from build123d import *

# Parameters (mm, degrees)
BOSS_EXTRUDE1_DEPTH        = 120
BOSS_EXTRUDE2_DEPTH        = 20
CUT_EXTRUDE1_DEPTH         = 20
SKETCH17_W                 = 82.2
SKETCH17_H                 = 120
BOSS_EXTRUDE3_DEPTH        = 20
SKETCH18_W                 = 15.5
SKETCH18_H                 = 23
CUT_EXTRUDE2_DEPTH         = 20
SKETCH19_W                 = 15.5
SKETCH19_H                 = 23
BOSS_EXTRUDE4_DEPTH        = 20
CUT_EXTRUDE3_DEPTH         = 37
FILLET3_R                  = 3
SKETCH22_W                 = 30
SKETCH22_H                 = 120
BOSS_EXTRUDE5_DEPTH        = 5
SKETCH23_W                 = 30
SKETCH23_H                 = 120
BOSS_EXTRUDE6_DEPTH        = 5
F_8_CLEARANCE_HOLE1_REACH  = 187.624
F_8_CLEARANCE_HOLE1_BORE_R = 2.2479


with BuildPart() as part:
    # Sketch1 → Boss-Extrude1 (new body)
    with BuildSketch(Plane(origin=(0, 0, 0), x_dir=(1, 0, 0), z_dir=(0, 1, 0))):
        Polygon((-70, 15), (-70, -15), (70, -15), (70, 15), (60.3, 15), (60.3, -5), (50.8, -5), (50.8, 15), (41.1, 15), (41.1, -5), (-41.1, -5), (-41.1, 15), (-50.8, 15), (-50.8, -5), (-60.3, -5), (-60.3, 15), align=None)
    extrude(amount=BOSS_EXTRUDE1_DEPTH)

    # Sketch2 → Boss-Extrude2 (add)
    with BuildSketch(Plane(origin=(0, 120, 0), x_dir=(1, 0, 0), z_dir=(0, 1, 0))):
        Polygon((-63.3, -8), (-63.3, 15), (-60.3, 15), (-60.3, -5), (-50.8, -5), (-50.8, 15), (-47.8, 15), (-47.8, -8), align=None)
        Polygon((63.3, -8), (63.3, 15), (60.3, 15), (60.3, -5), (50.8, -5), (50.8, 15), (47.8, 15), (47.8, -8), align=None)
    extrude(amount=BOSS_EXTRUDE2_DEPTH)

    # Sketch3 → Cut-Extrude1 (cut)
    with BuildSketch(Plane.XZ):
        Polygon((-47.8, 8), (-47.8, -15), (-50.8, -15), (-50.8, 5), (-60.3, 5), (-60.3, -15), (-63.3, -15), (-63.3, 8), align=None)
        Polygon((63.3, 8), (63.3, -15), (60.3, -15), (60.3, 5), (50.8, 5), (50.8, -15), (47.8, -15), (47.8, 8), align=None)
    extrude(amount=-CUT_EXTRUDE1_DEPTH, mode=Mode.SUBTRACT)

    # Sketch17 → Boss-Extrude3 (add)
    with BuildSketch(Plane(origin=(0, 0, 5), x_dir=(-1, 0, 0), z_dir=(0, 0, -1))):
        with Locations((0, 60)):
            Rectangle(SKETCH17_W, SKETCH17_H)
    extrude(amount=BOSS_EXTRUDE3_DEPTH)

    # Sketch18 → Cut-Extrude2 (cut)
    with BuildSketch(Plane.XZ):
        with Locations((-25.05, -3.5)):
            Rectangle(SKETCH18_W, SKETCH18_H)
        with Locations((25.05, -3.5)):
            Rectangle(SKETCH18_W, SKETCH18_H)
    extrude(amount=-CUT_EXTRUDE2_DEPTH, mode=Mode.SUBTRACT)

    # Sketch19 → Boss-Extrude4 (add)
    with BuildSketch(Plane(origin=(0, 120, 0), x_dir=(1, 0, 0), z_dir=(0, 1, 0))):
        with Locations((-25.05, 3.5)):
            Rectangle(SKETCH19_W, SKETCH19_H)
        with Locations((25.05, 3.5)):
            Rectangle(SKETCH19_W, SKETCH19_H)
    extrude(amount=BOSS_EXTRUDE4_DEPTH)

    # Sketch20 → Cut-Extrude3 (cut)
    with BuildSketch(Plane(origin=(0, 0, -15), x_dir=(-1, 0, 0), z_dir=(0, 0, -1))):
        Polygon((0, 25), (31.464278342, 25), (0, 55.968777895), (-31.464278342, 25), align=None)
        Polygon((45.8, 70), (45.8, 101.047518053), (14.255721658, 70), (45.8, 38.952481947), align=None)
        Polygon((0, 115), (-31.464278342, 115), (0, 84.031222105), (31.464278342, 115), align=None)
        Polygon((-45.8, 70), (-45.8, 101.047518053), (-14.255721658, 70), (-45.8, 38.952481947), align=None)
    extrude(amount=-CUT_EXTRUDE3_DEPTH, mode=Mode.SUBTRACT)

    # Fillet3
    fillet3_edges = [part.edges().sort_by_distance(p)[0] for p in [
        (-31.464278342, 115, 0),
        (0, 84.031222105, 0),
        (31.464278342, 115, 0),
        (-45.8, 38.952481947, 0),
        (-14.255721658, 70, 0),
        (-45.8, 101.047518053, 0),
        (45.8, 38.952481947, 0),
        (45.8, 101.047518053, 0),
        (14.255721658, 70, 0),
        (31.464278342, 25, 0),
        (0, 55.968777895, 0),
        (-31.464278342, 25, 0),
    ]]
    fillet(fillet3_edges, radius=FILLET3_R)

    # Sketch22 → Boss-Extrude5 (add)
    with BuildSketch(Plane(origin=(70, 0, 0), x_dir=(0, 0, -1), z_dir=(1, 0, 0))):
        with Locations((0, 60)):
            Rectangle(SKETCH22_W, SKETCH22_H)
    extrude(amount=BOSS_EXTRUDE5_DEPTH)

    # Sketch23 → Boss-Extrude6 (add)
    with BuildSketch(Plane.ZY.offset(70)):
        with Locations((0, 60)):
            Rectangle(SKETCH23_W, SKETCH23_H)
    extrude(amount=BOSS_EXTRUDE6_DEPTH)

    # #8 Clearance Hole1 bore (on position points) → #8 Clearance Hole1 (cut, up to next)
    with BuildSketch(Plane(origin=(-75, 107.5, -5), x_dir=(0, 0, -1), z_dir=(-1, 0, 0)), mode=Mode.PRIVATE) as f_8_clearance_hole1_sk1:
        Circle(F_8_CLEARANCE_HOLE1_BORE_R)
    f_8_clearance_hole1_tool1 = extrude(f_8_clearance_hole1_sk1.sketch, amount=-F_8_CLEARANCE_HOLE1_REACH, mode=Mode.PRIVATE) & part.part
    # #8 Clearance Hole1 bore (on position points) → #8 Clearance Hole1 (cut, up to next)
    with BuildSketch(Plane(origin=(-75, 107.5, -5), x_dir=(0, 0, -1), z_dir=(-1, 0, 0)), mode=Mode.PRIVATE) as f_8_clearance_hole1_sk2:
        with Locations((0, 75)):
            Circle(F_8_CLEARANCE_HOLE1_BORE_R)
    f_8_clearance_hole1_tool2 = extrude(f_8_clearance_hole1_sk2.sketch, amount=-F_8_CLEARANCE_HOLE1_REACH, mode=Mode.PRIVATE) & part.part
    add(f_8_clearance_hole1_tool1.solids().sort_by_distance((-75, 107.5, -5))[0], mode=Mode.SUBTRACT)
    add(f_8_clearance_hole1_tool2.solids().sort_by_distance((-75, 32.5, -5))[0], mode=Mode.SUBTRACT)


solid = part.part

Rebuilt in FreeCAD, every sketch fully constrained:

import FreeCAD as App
import Part
import Sketcher
from FreeCAD import Vector
Q = App.Units.Quantity


def edges_at(feature, points):
    """Names of the edges that pass closest to the given points."""
    edges = feature.Shape.Edges
    near = lambda p: min(range(len(edges)), key=lambda i: edges[i].distToShape(Part.Vertex(*p))[0])
    return sorted({f"Edge{near(p) + 1}" for p in points})


def add_polygon(sketch, points):
    """Adds a closed chain of lines whose ends are joined by coincident constraints."""
    first, n = sketch.GeometryCount, len(points)
    for a, b in zip(points, points[1:] + points[:1]):
        sketch.addGeometry(Part.LineSegment(App.Vector(*a, 0), App.Vector(*b, 0)), False)
    for i in range(n):
        sketch.addConstraint(Sketcher.Constraint("Coincident", first + i, 2, first + (i + 1) % n, 1))

doc = App.newDocument("Part")
params = doc.addObject("Spreadsheet::Sheet", "Params")
for row, (alias, value) in enumerate([
    ("sketch1_width", "140 mm"),
    ("sketch1_height", "30 mm"),
    ("sketch1_height2", "20 mm"),
    ("sketch1_width2", "9.7 mm"),
    ("sketch1_width3", "9.5 mm"),
    ("pad1_length", "120 mm"),
    ("sketch2_width", "3 mm"),
    ("sketch2_height", "23 mm"),
    ("sketch2_height2", "20 mm"),
    ("sketch2_width2", "15.5 mm"),
    ("pad2_length", "20 mm"),
    ("sketch3_width", "3 mm"),
    ("sketch3_height", "23 mm"),
    ("sketch3_height2", "20 mm"),
    ("sketch3_width2", "15.5 mm"),
    ("pocket1_length", "20 mm"),
    ("sketch4_height", "120 mm"),
    ("sketch4_width", "82.2 mm"),
    ("pad3_length", "20 mm"),
    ("sketch5_height", "23 mm"),
    ("sketch5_width", "15.5 mm"),
    ("pocket2_length", "20 mm"),
    ("sketch6_height", "23 mm"),
    ("sketch6_width", "15.5 mm"),
    ("pad4_length", "20 mm"),
    ("pocket3_length", "37 mm"),
    ("fillet_radius", "3 mm"),
    ("sketch8_width", "120 mm"),
    ("sketch8_height", "30 mm"),
    ("pad5_length", "5 mm"),
    ("sketch9_width", "120 mm"),
    ("sketch9_height", "30 mm"),
    ("pad6_length", "5 mm"),
], start=1):
    params.set(f"A{row}", alias)
    params.set(f"B{row}", "=" + value)
    params.setAlias(f"B{row}", alias)

body = doc.addObject("PartDesign::Body", "Body")

sketch1 = body.newObject("Sketcher::SketchObject", "Sketch")
sketch1.AttachmentSupport = (doc.getObject("XZ_Plane"), [""])
sketch1.MapMode = "FlatFace"
add_polygon(sketch1, [(-70, -15), (-70, 15), (70, 15), (70, -15), (60, -15), (60, 5), (51, 5), (51, -15), (41, -15), (41, 5), (-41, 5), (-41, -15), (-51, -15), (-51, 5), (-60, 5), (-60, -15)])
sketch1.addConstraint(Sketcher.Constraint("Vertical", 0))
sketch1.addConstraint(Sketcher.Constraint("Horizontal", 1))
sketch1.addConstraint(Sketcher.Constraint("Vertical", 2))
sketch1.addConstraint(Sketcher.Constraint("Horizontal", 3))
sketch1.addConstraint(Sketcher.Constraint("Vertical", 4))
sketch1.addConstraint(Sketcher.Constraint("Horizontal", 5))
sketch1.addConstraint(Sketcher.Constraint("Vertical", 6))
sketch1.addConstraint(Sketcher.Constraint("Horizontal", 7))
sketch1.addConstraint(Sketcher.Constraint("Vertical", 8))
sketch1.addConstraint(Sketcher.Constraint("Horizontal", 9))
sketch1.addConstraint(Sketcher.Constraint("Vertical", 10))
sketch1.addConstraint(Sketcher.Constraint("Horizontal", 11))
sketch1.addConstraint(Sketcher.Constraint("Vertical", 12))
sketch1.addConstraint(Sketcher.Constraint("Horizontal", 13))
sketch1.addConstraint(Sketcher.Constraint("Vertical", 14))
sketch1.addConstraint(Sketcher.Constraint("Horizontal", 15))
sketch1.addConstraint(Sketcher.Constraint("Symmetric", 0, 2, 2, 2, -1, 1))
sketch1.addConstraint(Sketcher.Constraint("Symmetric", 7, 2, 10, 2, -2))
sketch1.addConstraint(Sketcher.Constraint("Symmetric", 5, 2, 12, 2, -2))
sketch1.addConstraint(Sketcher.Constraint("Symmetric", 3, 2, 14, 2, -2))
sketch1.addConstraint(Sketcher.Constraint("Horizontal", 3, 2, 6, 2))
sketch1.addConstraint(Sketcher.Constraint("Horizontal", 5, 2, 8, 2))
sketch1.addConstraint(Sketcher.Constraint("Equal", 3, 7))
sketch1.addConstraint(Sketcher.Constraint("DistanceX", 1, 1, 1, 2, Q("140 mm")))
sketch1.addConstraint(Sketcher.Constraint("DistanceY", 0, 1, 0, 2, Q("30 mm")))
sketch1.addConstraint(Sketcher.Constraint("DistanceY", 4, 1, 4, 2, Q("20 mm")))
sketch1.addConstraint(Sketcher.Constraint("DistanceX", 3, 2, 3, 1, Q("9.7 mm")))
sketch1.addConstraint(Sketcher.Constraint("DistanceX", 5, 2, 5, 1, Q("9.5 mm")))
sketch1.setExpression("Constraints[39]", "Params.sketch1_width")
sketch1.setExpression("Constraints[40]", "Params.sketch1_height")
sketch1.setExpression("Constraints[41]", "Params.sketch1_height2")
sketch1.setExpression("Constraints[42]", "Params.sketch1_width2")
sketch1.setExpression("Constraints[43]", "Params.sketch1_width3")
pad1 = body.newObject("PartDesign::Pad", "Pad")
pad1.Profile = sketch1
pad1.setExpression("Length", "Params.pad1_length")
pad1.Reversed = True

sketch2 = body.newObject("Sketcher::SketchObject", "Sketch001")
sketch2.AttachmentSupport = (doc.getObject("XZ_Plane"), [""])
sketch2.MapMode = "FlatFace"
sketch2.AttachmentOffset = App.Placement(Vector(0, 0, -120), App.Rotation())
add_polygon(sketch2, [(-63.3, -15), (-63.3, 8), (-47.8, 8), (-47.8, -15), (-50.8, -15), (-50.8, 5), (-60.3, 5), (-60.3, -15)])
add_polygon(sketch2, [(63.3, 8), (63.3, -15), (60.3, -15), (60.3, 5), (50.8, 5), (50.8, -15), (47.8, -15), (47.8, 8)])
sketch2.addConstraint(Sketcher.Constraint("Vertical", 0))
sketch2.addConstraint(Sketcher.Constraint("Horizontal", 1))
sketch2.addConstraint(Sketcher.Constraint("Vertical", 2))
sketch2.addConstraint(Sketcher.Constraint("Horizontal", 3))
sketch2.addConstraint(Sketcher.Constraint("Vertical", 4))
sketch2.addConstraint(Sketcher.Constraint("Horizontal", 5))
sketch2.addConstraint(Sketcher.Constraint("Vertical", 6))
sketch2.addConstraint(Sketcher.Constraint("Horizontal", 7))
sketch2.addConstraint(Sketcher.Constraint("Vertical", 8))
sketch2.addConstraint(Sketcher.Constraint("Horizontal", 9))
sketch2.addConstraint(Sketcher.Constraint("Vertical", 10))
sketch2.addConstraint(Sketcher.Constraint("Horizontal", 11))
sketch2.addConstraint(Sketcher.Constraint("Vertical", 12))
sketch2.addConstraint(Sketcher.Constraint("Horizontal", 13))
sketch2.addConstraint(Sketcher.Constraint("Vertical", 14))
sketch2.addConstraint(Sketcher.Constraint("Horizontal", 15))
sketch2.addConstraint(Sketcher.Constraint("Symmetric", 7, 2, 8, 2, -2))
sketch2.addConstraint(Sketcher.Constraint("Symmetric", 5, 2, 10, 2, -2))
sketch2.addConstraint(Sketcher.Constraint("Symmetric", 3, 2, 12, 2, -2))
sketch2.addConstraint(Sketcher.Constraint("Symmetric", 1, 2, 14, 2, -2))
sketch2.addConstraint(Sketcher.Constraint("Horizontal", 3, 2, 6, 2))
sketch2.addConstraint(Sketcher.Constraint("Equal", 3, 7))
sketch2.addConstraint(Sketcher.Constraint("DistanceX", 3, 2, 3, 1, Q("3 mm")))
sketch2.addConstraint(Sketcher.Constraint("DistanceY", 0, 1, 0, 2, Q("23 mm")))
sketch2.addConstraint(Sketcher.Constraint("DistanceY", 4, 1, 4, 2, Q("20 mm")))
sketch2.addConstraint(Sketcher.Constraint("DistanceX", 1, 1, 1, 2, Q("15.5 mm")))
sketch2.addConstraint(Sketcher.Constraint("DistanceY", -1, 1, 0, 2, Q("8 mm")))
sketch2.addConstraint(Sketcher.Constraint("DistanceX", 0, 2, -1, 1, Q("63.3 mm")))
sketch2.setExpression("Constraints[38]", "Params.sketch2_width")
sketch2.setExpression("Constraints[39]", "Params.sketch2_height")
sketch2.setExpression("Constraints[40]", "Params.sketch2_height2")
sketch2.setExpression("Constraints[41]", "Params.sketch2_width2")
pad2 = body.newObject("PartDesign::Pad", "Pad001")
pad2.Profile = sketch2
pad2.setExpression("Length", "Params.pad2_length")
pad2.Reversed = True

sketch3 = body.newObject("Sketcher::SketchObject", "Sketch002")
sketch3.AttachmentSupport = (doc.getObject("XZ_Plane"), [""])
sketch3.MapMode = "FlatFace"
add_polygon(sketch3, [(-47.8, -15), (-47.8, 8), (-63.3, 8), (-63.3, -15), (-60.3, -15), (-60.3, 5), (-50.8, 5), (-50.8, -15)])
add_polygon(sketch3, [(63.3, -15), (63.3, 8), (47.8, 8), (47.8, -15), (50.8, -15), (50.8, 5), (60.3, 5), (60.3, -15)])
sketch3.addConstraint(Sketcher.Constraint("Vertical", 0))
sketch3.addConstraint(Sketcher.Constraint("Horizontal", 1))
sketch3.addConstraint(Sketcher.Constraint("Vertical", 2))
sketch3.addConstraint(Sketcher.Constraint("Horizontal", 3))
sketch3.addConstraint(Sketcher.Constraint("Vertical", 4))
sketch3.addConstraint(Sketcher.Constraint("Horizontal", 5))
sketch3.addConstraint(Sketcher.Constraint("Vertical", 6))
sketch3.addConstraint(Sketcher.Constraint("Horizontal", 7))
sketch3.addConstraint(Sketcher.Constraint("Vertical", 8))
sketch3.addConstraint(Sketcher.Constraint("Horizontal", 9))
sketch3.addConstraint(Sketcher.Constraint("Vertical", 10))
sketch3.addConstraint(Sketcher.Constraint("Horizontal", 11))
sketch3.addConstraint(Sketcher.Constraint("Vertical", 12))
sketch3.addConstraint(Sketcher.Constraint("Horizontal", 13))
sketch3.addConstraint(Sketcher.Constraint("Vertical", 14))
sketch3.addConstraint(Sketcher.Constraint("Horizontal", 15))
sketch3.addConstraint(Sketcher.Constraint("Symmetric", 1, 2, 8, 2, -2))
sketch3.addConstraint(Sketcher.Constraint("Symmetric", 7, 2, 10, 2, -2))
sketch3.addConstraint(Sketcher.Constraint("Symmetric", 5, 2, 12, 2, -2))
sketch3.addConstraint(Sketcher.Constraint("Symmetric", 3, 2, 14, 2, -2))
sketch3.addConstraint(Sketcher.Constraint("Horizontal", 3, 2, 6, 2))
sketch3.addConstraint(Sketcher.Constraint("Equal", 3, 7))
sketch3.addConstraint(Sketcher.Constraint("DistanceX", 3, 1, 3, 2, Q("3 mm")))
sketch3.addConstraint(Sketcher.Constraint("DistanceY", 0, 1, 0, 2, Q("23 mm")))
sketch3.addConstraint(Sketcher.Constraint("DistanceY", 4, 1, 4, 2, Q("20 mm")))
sketch3.addConstraint(Sketcher.Constraint("DistanceX", 1, 2, 1, 1, Q("15.5 mm")))
sketch3.addConstraint(Sketcher.Constraint("DistanceY", -1, 1, 0, 2, Q("8 mm")))
sketch3.addConstraint(Sketcher.Constraint("DistanceX", 0, 2, -1, 1, Q("47.8 mm")))
sketch3.setExpression("Constraints[38]", "Params.sketch3_width")
sketch3.setExpression("Constraints[39]", "Params.sketch3_height")
sketch3.setExpression("Constraints[40]", "Params.sketch3_height2")
sketch3.setExpression("Constraints[41]", "Params.sketch3_width2")
pocket1 = body.newObject("PartDesign::Pocket", "Pocket")
pocket1.Profile = sketch3
pocket1.setExpression("Length", "Params.pocket1_length")

sketch4 = body.newObject("Sketcher::SketchObject", "Sketch003")
sketch4.AttachmentSupport = (doc.getObject("XY_Plane"), [""])
sketch4.MapMode = "FlatFace"
sketch4.AttachmentOffset = App.Placement(Vector(0, 0, 5), App.Rotation())
add_polygon(sketch4, [(41, 120), (41, 0), (-41, 0), (-41, 120)])
sketch4.addConstraint(Sketcher.Constraint("Vertical", 0))
sketch4.addConstraint(Sketcher.Constraint("Horizontal", 1))
sketch4.addConstraint(Sketcher.Constraint("Vertical", 2))
sketch4.addConstraint(Sketcher.Constraint("Horizontal", 3))
sketch4.addConstraint(Sketcher.Constraint("Symmetric", 0, 2, 1, 2, -1, 1))
sketch4.addConstraint(Sketcher.Constraint("DistanceY", 0, 2, 0, 1, Q("120 mm")))
sketch4.addConstraint(Sketcher.Constraint("DistanceX", 1, 2, 1, 1, Q("82.2 mm")))
sketch4.setExpression("Constraints[9]", "Params.sketch4_height")
sketch4.setExpression("Constraints[10]", "Params.sketch4_width")
pad3 = body.newObject("PartDesign::Pad", "Pad002")
pad3.Profile = sketch4
pad3.setExpression("Length", "Params.pad3_length")
pad3.Reversed = True

sketch5 = body.newObject("Sketcher::SketchObject", "Sketch004")
sketch5.AttachmentSupport = (doc.getObject("XZ_Plane"), [""])
sketch5.MapMode = "FlatFace"
add_polygon(sketch5, [(-33, 8), (-33, -15), (-17, -15), (-17, 8)])
add_polygon(sketch5, [(17, 8), (17, -15), (33, -15), (33, 8)])
sketch5.addConstraint(Sketcher.Constraint("Vertical", 0))
sketch5.addConstraint(Sketcher.Constraint("Horizontal", 1))
sketch5.addConstraint(Sketcher.Constraint("Vertical", 2))
sketch5.addConstraint(Sketcher.Constraint("Horizontal", 3))
sketch5.addConstraint(Sketcher.Constraint("Vertical", 4))
sketch5.addConstraint(Sketcher.Constraint("Horizontal", 5))
sketch5.addConstraint(Sketcher.Constraint("Vertical", 6))
sketch5.addConstraint(Sketcher.Constraint("Horizontal", 7))
sketch5.addConstraint(Sketcher.Constraint("Symmetric", 1, 2, 4, 2, -2))
sketch5.addConstraint(Sketcher.Constraint("Symmetric", 3, 2, 6, 2, -2))
sketch5.addConstraint(Sketcher.Constraint("DistanceY", 0, 2, 0, 1, Q("23 mm")))
sketch5.addConstraint(Sketcher.Constraint("DistanceX", 1, 1, 1, 2, Q("15.5 mm")))
sketch5.addConstraint(Sketcher.Constraint("DistanceY", 0, 2, -1, 1, Q("15 mm")))
sketch5.addConstraint(Sketcher.Constraint("DistanceX", 0, 2, -1, 1, Q("32.8 mm")))
sketch5.setExpression("Constraints[18]", "Params.sketch5_height")
sketch5.setExpression("Constraints[19]", "Params.sketch5_width")
pocket2 = body.newObject("PartDesign::Pocket", "Pocket001")
pocket2.Profile = sketch5
pocket2.setExpression("Length", "Params.pocket2_length")

sketch6 = body.newObject("Sketcher::SketchObject", "Sketch005")
sketch6.AttachmentSupport = (doc.getObject("XZ_Plane"), [""])
sketch6.MapMode = "FlatFace"
sketch6.AttachmentOffset = App.Placement(Vector(0, 0, -120), App.Rotation())
add_polygon(sketch6, [(-33, -15), (-33, 8), (-17, 8), (-17, -15)])
add_polygon(sketch6, [(17, -15), (17, 8), (33, 8), (33, -15)])
sketch6.addConstraint(Sketcher.Constraint("Vertical", 0))
sketch6.addConstraint(Sketcher.Constraint("Horizontal", 1))
sketch6.addConstraint(Sketcher.Constraint("Vertical", 2))
sketch6.addConstraint(Sketcher.Constraint("Horizontal", 3))
sketch6.addConstraint(Sketcher.Constraint("Vertical", 4))
sketch6.addConstraint(Sketcher.Constraint("Horizontal", 5))
sketch6.addConstraint(Sketcher.Constraint("Vertical", 6))
sketch6.addConstraint(Sketcher.Constraint("Horizontal", 7))
sketch6.addConstraint(Sketcher.Constraint("Symmetric", 1, 2, 4, 2, -2))
sketch6.addConstraint(Sketcher.Constraint("Symmetric", 3, 2, 6, 2, -2))
sketch6.addConstraint(Sketcher.Constraint("DistanceY", 0, 1, 0, 2, Q("23 mm")))
sketch6.addConstraint(Sketcher.Constraint("DistanceX", 1, 1, 1, 2, Q("15.5 mm")))
sketch6.addConstraint(Sketcher.Constraint("DistanceY", -1, 1, 0, 2, Q("8 mm")))
sketch6.addConstraint(Sketcher.Constraint("DistanceX", 0, 2, -1, 1, Q("32.8 mm")))
sketch6.setExpression("Constraints[18]", "Params.sketch6_height")
sketch6.setExpression("Constraints[19]", "Params.sketch6_width")
pad4 = body.newObject("PartDesign::Pad", "Pad003")
pad4.Profile = sketch6
pad4.setExpression("Length", "Params.pad4_length")
pad4.Reversed = True

sketch7 = body.newObject("Sketcher::SketchObject", "Sketch006")
sketch7.AttachmentSupport = (doc.getObject("XY_Plane"), [""])
sketch7.MapMode = "FlatFace"
sketch7.AttachmentOffset = App.Placement(Vector(0, 0, -15), App.Rotation())
add_polygon(sketch7, [(-31, 25), (0, 56), (31, 25)])
add_polygon(sketch7, [(-46, 101), (-14, 70), (-46, 39)])
add_polygon(sketch7, [(31, 115), (0, 84), (-31, 115)])
add_polygon(sketch7, [(46, 101), (46, 39), (14, 70)])
sketch7.addConstraint(Sketcher.Constraint("Horizontal", 2))
sketch7.addConstraint(Sketcher.Constraint("Vertical", 5))
sketch7.addConstraint(Sketcher.Constraint("Horizontal", 8))
sketch7.addConstraint(Sketcher.Constraint("Vertical", 9))
sketch7.addConstraint(Sketcher.Constraint("Symmetric", 4, 2, 9, 2, -2))
sketch7.addConstraint(Sketcher.Constraint("Symmetric", 3, 2, 10, 2, -2))
sketch7.addConstraint(Sketcher.Constraint("PointOnObject", 0, 2, -2))
sketch7.addConstraint(Sketcher.Constraint("PointOnObject", 6, 2, -2))
sketch7.addConstraint(Sketcher.Constraint("Parallel", 1, 3))
sketch7.addConstraint(Sketcher.Constraint("Parallel", 0, 4))
sketch7.addConstraint(Sketcher.Constraint("Parallel", 4, 6))
sketch7.addConstraint(Sketcher.Constraint("Parallel", 3, 7))
sketch7.addConstraint(Sketcher.Constraint("Parallel", 7, 10))
sketch7.addConstraint(Sketcher.Constraint("Parallel", 6, 11))
sketch7.addConstraint(Sketcher.Constraint("Vertical", 2, 2, 7, 2))
sketch7.addConstraint(Sketcher.Constraint("DistanceY", -1, 1, 1, 2, Q("25 mm")))
sketch7.addConstraint(Sketcher.Constraint("DistanceY", -1, 1, 3, 2, Q("70 mm")))
sketch7.addConstraint(Sketcher.Constraint("DistanceY", -1, 1, 7, 2, Q("115 mm")))
sketch7.addConstraint(Sketcher.Constraint("DistanceX", 4, 2, -1, 1, Q("45.8 mm")))
sketch7.addConstraint(Sketcher.Constraint("DistanceX", 3, 2, 1, 2, Q("45.72 mm")))
sketch7.addConstraint(Sketcher.Constraint("DistanceX", 2, 2, 2, 1, Q("62.928557 mm")))
sketch7.addConstraint(Sketcher.Constraint("DistanceY", 5, 1, 5, 2, Q("62.095036 mm")))
pocket3 = body.newObject("PartDesign::Pocket", "Pocket002")
pocket3.Profile = sketch7
pocket3.setExpression("Length", "Params.pocket3_length")
pocket3.Reversed = True
doc.recompute()

fillet = body.newObject("PartDesign::Fillet", "Fillet")
fillet.Base = (pocket3, edges_at(pocket3, [
    (-31.464, 115, 0),
    (0, 84.031, 0),
    (31.464, 115, 0),
    (-45.8, 38.952, 0),
    (-14.256, 70, 0),
    (-45.8, 101.048, 0),
    (45.8, 38.952, 0),
    (45.8, 101.048, 0),
    (14.256, 70, 0),
    (31.464, 25, 0),
    (0, 55.969, 0),
    (-31.464, 25, 0),
]))
fillet.setExpression("Radius", "Params.fillet_radius")

sketch8 = body.newObject("Sketcher::SketchObject", "Sketch007")
sketch8.AttachmentSupport = (doc.getObject("YZ_Plane"), [""])
sketch8.MapMode = "FlatFace"
sketch8.AttachmentOffset = App.Placement(Vector(0, 0, 70), App.Rotation())
add_polygon(sketch8, [(120, 15), (0, 15), (0, -15), (120, -15)])
sketch8.addConstraint(Sketcher.Constraint("Horizontal", 0))
sketch8.addConstraint(Sketcher.Constraint("Vertical", 1))
sketch8.addConstraint(Sketcher.Constraint("Horizontal", 2))
sketch8.addConstraint(Sketcher.Constraint("Vertical", 3))
sketch8.addConstraint(Sketcher.Constraint("Symmetric", 0, 2, 1, 2, -1, 1))
sketch8.addConstraint(Sketcher.Constraint("DistanceX", 0, 2, 0, 1, Q("120 mm")))
sketch8.addConstraint(Sketcher.Constraint("DistanceY", 1, 2, 1, 1, Q("30 mm")))
sketch8.setExpression("Constraints[9]", "Params.sketch8_width")
sketch8.setExpression("Constraints[10]", "Params.sketch8_height")
pad5 = body.newObject("PartDesign::Pad", "Pad004")
pad5.Profile = sketch8
pad5.setExpression("Length", "Params.pad5_length")

sketch9 = body.newObject("Sketcher::SketchObject", "Sketch008")
sketch9.AttachmentSupport = (doc.getObject("YZ_Plane"), [""])
sketch9.MapMode = "FlatFace"
sketch9.AttachmentOffset = App.Placement(Vector(0, 0, -70), App.Rotation())
add_polygon(sketch9, [(120, -15), (0, -15), (0, 15), (120, 15)])
sketch9.addConstraint(Sketcher.Constraint("Horizontal", 0))
sketch9.addConstraint(Sketcher.Constraint("Vertical", 1))
sketch9.addConstraint(Sketcher.Constraint("Horizontal", 2))
sketch9.addConstraint(Sketcher.Constraint("Vertical", 3))
sketch9.addConstraint(Sketcher.Constraint("Symmetric", 0, 2, 1, 2, -1, 1))
sketch9.addConstraint(Sketcher.Constraint("DistanceX", 0, 2, 0, 1, Q("120 mm")))
sketch9.addConstraint(Sketcher.Constraint("DistanceY", 1, 1, 1, 2, Q("30 mm")))
sketch9.setExpression("Constraints[9]", "Params.sketch9_width")
sketch9.setExpression("Constraints[10]", "Params.sketch9_height")
pad6 = body.newObject("PartDesign::Pad", "Pad005")
pad6.Profile = sketch9
pad6.setExpression("Length", "Params.pad6_length")
pad6.Reversed = True

sketch10 = body.newObject("Sketcher::SketchObject", "Sketch009")
sketch10.AttachmentSupport = (doc.getObject("YZ_Plane"), [""])
sketch10.MapMode = "FlatFace"
sketch10.AttachmentOffset = App.Placement(Vector(0, 0, -75), App.Rotation())
sketch10.addGeometry(Part.Circle(Vector(107.5, -5, 0), Vector(0, 0, 1), 2.2), False)
sketch10.addConstraint(Sketcher.Constraint("DistanceY", 0, 3, -1, 1, Q("5 mm")))
sketch10.addConstraint(Sketcher.Constraint("Diameter", 0, Q("4.4958 mm")))
sketch10.addConstraint(Sketcher.Constraint("DistanceX", -1, 1, 0, 3, Q("107.5 mm")))
pocket4 = body.newObject("PartDesign::Pocket", "Pocket003")
pocket4.Profile = sketch10
pocket4.Type = "UpToFirst"
pocket4.Reversed = True

sketch11 = body.newObject("Sketcher::SketchObject", "Sketch010")
sketch11.AttachmentSupport = (doc.getObject("YZ_Plane"), [""])
sketch11.MapMode = "FlatFace"
sketch11.AttachmentOffset = App.Placement(Vector(0, 0, -75), App.Rotation())
sketch11.addGeometry(Part.Circle(Vector(32.5, -5, 0), Vector(0, 0, 1), 2.2), False)
sketch11.addConstraint(Sketcher.Constraint("DistanceY", 0, 3, -1, 1, Q("5 mm")))
sketch11.addConstraint(Sketcher.Constraint("Diameter", 0, Q("4.4958 mm")))
sketch11.addConstraint(Sketcher.Constraint("DistanceX", -1, 1, 0, 3, Q("32.5 mm")))
pocket5 = body.newObject("PartDesign::Pocket", "Pocket004")
pocket5.Profile = sketch11
pocket5.Type = "UpToFirst"
pocket5.Reversed = True

doc.recompute()
